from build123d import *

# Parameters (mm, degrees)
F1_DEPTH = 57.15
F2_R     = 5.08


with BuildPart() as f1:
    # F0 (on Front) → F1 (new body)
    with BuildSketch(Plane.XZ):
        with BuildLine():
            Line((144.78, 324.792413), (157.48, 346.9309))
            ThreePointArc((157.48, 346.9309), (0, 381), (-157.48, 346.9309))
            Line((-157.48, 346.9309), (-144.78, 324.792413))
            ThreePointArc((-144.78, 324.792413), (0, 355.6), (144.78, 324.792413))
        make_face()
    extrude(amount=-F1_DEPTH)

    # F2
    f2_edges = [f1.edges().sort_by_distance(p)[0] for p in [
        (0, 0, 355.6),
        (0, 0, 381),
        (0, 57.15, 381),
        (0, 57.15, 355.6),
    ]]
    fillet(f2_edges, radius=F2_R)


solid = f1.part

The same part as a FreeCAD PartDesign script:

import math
import FreeCAD as App
import Part
import Sketcher

V = App.Vector
Q = App.Units.Quantity


def edges_at(feature, points):
    """Names of the edges that pass closest to the given points."""
    edges = feature.Shape.Edges
    near = lambda p: min(range(len(edges)), key=lambda i: edges[i].distToShape(Part.Vertex(*p))[0])
    return sorted({f"Edge{near(p) + 1}" for p in points})

doc = App.newDocument("Part")
body = doc.addObject("PartDesign::Body", "Body")

sketch1 = body.newObject("Sketcher::SketchObject", "Sketch")
sketch1.AttachmentSupport = (doc.getObject("XZ_Plane"), [""])
sketch1.MapMode = "FlatFace"
sketch1.addGeometry(Part.LineSegment(V(145, 325, 0), V(157, 347, 0)), False)
sketch1.addGeometry(Part.ArcOfCircle(Part.Circle(V(0, 0, 0), V(0, 0, 1), 381), math.radians(66), math.radians(114)), False)
sketch1.addGeometry(Part.LineSegment(V(-157, 347, 0), V(-145, 325, 0)), False)
sketch1.addGeometry(Part.ArcOfCircle(Part.Circle(V(0, 0, 0), V(0, 0, 1), 356), math.radians(66), math.radians(114)), False)
sketch1.addConstraint(Sketcher.Constraint("Coincident", 0, 2, 1, 1))
sketch1.addConstraint(Sketcher.Constraint("Coincident", 1, 2, 2, 1))
sketch1.addConstraint(Sketcher.Constraint("Coincident", 2, 2, 3, 2))
sketch1.addConstraint(Sketcher.Constraint("Coincident", 3, 1, 0, 1))
sketch1.addConstraint(Sketcher.Constraint("Coincident", 1, 3, -1, 1))
sketch1.addConstraint(Sketcher.Constraint("Coincident", 3, 3, -1, 1))
sketch1.addConstraint(Sketcher.Constraint("Horizontal", 0, 2, 1, 2))
sketch1.addConstraint(Sketcher.Constraint("Horizontal", 2, 2, 3, 1))
sketch1.addConstraint(Sketcher.Constraint("Radius", 1, Q("14.9999999 in")))
sketch1.addConstraint(Sketcher.Constraint("Radius", 3, Q("14 in")))
sketch1.addConstraint(Sketcher.Constraint("DistanceX", -1, 1, 0, 2, Q("6.2 in")))
sketch1.addConstraint(Sketcher.Constraint("DistanceX", 2, 2, -1, 1, Q("5.7 in")))
pad1 = body.newObject("PartDesign::Pad", "Pad")
pad1.Profile = sketch1
pad1.Length = Q("2.25 in")
pad1.Reversed = True
doc.recompute()

fillet = body.newObject("PartDesign::Fillet", "Fillet")
fillet.Base = (pad1, edges_at(pad1, [
    (0, 0, 355.6),
    (0, 0, 381),
    (0, 57.15, 381),
    (0, 57.15, 355.6),
]))
fillet.Radius = Q("0.2 in")

doc.recompute()
